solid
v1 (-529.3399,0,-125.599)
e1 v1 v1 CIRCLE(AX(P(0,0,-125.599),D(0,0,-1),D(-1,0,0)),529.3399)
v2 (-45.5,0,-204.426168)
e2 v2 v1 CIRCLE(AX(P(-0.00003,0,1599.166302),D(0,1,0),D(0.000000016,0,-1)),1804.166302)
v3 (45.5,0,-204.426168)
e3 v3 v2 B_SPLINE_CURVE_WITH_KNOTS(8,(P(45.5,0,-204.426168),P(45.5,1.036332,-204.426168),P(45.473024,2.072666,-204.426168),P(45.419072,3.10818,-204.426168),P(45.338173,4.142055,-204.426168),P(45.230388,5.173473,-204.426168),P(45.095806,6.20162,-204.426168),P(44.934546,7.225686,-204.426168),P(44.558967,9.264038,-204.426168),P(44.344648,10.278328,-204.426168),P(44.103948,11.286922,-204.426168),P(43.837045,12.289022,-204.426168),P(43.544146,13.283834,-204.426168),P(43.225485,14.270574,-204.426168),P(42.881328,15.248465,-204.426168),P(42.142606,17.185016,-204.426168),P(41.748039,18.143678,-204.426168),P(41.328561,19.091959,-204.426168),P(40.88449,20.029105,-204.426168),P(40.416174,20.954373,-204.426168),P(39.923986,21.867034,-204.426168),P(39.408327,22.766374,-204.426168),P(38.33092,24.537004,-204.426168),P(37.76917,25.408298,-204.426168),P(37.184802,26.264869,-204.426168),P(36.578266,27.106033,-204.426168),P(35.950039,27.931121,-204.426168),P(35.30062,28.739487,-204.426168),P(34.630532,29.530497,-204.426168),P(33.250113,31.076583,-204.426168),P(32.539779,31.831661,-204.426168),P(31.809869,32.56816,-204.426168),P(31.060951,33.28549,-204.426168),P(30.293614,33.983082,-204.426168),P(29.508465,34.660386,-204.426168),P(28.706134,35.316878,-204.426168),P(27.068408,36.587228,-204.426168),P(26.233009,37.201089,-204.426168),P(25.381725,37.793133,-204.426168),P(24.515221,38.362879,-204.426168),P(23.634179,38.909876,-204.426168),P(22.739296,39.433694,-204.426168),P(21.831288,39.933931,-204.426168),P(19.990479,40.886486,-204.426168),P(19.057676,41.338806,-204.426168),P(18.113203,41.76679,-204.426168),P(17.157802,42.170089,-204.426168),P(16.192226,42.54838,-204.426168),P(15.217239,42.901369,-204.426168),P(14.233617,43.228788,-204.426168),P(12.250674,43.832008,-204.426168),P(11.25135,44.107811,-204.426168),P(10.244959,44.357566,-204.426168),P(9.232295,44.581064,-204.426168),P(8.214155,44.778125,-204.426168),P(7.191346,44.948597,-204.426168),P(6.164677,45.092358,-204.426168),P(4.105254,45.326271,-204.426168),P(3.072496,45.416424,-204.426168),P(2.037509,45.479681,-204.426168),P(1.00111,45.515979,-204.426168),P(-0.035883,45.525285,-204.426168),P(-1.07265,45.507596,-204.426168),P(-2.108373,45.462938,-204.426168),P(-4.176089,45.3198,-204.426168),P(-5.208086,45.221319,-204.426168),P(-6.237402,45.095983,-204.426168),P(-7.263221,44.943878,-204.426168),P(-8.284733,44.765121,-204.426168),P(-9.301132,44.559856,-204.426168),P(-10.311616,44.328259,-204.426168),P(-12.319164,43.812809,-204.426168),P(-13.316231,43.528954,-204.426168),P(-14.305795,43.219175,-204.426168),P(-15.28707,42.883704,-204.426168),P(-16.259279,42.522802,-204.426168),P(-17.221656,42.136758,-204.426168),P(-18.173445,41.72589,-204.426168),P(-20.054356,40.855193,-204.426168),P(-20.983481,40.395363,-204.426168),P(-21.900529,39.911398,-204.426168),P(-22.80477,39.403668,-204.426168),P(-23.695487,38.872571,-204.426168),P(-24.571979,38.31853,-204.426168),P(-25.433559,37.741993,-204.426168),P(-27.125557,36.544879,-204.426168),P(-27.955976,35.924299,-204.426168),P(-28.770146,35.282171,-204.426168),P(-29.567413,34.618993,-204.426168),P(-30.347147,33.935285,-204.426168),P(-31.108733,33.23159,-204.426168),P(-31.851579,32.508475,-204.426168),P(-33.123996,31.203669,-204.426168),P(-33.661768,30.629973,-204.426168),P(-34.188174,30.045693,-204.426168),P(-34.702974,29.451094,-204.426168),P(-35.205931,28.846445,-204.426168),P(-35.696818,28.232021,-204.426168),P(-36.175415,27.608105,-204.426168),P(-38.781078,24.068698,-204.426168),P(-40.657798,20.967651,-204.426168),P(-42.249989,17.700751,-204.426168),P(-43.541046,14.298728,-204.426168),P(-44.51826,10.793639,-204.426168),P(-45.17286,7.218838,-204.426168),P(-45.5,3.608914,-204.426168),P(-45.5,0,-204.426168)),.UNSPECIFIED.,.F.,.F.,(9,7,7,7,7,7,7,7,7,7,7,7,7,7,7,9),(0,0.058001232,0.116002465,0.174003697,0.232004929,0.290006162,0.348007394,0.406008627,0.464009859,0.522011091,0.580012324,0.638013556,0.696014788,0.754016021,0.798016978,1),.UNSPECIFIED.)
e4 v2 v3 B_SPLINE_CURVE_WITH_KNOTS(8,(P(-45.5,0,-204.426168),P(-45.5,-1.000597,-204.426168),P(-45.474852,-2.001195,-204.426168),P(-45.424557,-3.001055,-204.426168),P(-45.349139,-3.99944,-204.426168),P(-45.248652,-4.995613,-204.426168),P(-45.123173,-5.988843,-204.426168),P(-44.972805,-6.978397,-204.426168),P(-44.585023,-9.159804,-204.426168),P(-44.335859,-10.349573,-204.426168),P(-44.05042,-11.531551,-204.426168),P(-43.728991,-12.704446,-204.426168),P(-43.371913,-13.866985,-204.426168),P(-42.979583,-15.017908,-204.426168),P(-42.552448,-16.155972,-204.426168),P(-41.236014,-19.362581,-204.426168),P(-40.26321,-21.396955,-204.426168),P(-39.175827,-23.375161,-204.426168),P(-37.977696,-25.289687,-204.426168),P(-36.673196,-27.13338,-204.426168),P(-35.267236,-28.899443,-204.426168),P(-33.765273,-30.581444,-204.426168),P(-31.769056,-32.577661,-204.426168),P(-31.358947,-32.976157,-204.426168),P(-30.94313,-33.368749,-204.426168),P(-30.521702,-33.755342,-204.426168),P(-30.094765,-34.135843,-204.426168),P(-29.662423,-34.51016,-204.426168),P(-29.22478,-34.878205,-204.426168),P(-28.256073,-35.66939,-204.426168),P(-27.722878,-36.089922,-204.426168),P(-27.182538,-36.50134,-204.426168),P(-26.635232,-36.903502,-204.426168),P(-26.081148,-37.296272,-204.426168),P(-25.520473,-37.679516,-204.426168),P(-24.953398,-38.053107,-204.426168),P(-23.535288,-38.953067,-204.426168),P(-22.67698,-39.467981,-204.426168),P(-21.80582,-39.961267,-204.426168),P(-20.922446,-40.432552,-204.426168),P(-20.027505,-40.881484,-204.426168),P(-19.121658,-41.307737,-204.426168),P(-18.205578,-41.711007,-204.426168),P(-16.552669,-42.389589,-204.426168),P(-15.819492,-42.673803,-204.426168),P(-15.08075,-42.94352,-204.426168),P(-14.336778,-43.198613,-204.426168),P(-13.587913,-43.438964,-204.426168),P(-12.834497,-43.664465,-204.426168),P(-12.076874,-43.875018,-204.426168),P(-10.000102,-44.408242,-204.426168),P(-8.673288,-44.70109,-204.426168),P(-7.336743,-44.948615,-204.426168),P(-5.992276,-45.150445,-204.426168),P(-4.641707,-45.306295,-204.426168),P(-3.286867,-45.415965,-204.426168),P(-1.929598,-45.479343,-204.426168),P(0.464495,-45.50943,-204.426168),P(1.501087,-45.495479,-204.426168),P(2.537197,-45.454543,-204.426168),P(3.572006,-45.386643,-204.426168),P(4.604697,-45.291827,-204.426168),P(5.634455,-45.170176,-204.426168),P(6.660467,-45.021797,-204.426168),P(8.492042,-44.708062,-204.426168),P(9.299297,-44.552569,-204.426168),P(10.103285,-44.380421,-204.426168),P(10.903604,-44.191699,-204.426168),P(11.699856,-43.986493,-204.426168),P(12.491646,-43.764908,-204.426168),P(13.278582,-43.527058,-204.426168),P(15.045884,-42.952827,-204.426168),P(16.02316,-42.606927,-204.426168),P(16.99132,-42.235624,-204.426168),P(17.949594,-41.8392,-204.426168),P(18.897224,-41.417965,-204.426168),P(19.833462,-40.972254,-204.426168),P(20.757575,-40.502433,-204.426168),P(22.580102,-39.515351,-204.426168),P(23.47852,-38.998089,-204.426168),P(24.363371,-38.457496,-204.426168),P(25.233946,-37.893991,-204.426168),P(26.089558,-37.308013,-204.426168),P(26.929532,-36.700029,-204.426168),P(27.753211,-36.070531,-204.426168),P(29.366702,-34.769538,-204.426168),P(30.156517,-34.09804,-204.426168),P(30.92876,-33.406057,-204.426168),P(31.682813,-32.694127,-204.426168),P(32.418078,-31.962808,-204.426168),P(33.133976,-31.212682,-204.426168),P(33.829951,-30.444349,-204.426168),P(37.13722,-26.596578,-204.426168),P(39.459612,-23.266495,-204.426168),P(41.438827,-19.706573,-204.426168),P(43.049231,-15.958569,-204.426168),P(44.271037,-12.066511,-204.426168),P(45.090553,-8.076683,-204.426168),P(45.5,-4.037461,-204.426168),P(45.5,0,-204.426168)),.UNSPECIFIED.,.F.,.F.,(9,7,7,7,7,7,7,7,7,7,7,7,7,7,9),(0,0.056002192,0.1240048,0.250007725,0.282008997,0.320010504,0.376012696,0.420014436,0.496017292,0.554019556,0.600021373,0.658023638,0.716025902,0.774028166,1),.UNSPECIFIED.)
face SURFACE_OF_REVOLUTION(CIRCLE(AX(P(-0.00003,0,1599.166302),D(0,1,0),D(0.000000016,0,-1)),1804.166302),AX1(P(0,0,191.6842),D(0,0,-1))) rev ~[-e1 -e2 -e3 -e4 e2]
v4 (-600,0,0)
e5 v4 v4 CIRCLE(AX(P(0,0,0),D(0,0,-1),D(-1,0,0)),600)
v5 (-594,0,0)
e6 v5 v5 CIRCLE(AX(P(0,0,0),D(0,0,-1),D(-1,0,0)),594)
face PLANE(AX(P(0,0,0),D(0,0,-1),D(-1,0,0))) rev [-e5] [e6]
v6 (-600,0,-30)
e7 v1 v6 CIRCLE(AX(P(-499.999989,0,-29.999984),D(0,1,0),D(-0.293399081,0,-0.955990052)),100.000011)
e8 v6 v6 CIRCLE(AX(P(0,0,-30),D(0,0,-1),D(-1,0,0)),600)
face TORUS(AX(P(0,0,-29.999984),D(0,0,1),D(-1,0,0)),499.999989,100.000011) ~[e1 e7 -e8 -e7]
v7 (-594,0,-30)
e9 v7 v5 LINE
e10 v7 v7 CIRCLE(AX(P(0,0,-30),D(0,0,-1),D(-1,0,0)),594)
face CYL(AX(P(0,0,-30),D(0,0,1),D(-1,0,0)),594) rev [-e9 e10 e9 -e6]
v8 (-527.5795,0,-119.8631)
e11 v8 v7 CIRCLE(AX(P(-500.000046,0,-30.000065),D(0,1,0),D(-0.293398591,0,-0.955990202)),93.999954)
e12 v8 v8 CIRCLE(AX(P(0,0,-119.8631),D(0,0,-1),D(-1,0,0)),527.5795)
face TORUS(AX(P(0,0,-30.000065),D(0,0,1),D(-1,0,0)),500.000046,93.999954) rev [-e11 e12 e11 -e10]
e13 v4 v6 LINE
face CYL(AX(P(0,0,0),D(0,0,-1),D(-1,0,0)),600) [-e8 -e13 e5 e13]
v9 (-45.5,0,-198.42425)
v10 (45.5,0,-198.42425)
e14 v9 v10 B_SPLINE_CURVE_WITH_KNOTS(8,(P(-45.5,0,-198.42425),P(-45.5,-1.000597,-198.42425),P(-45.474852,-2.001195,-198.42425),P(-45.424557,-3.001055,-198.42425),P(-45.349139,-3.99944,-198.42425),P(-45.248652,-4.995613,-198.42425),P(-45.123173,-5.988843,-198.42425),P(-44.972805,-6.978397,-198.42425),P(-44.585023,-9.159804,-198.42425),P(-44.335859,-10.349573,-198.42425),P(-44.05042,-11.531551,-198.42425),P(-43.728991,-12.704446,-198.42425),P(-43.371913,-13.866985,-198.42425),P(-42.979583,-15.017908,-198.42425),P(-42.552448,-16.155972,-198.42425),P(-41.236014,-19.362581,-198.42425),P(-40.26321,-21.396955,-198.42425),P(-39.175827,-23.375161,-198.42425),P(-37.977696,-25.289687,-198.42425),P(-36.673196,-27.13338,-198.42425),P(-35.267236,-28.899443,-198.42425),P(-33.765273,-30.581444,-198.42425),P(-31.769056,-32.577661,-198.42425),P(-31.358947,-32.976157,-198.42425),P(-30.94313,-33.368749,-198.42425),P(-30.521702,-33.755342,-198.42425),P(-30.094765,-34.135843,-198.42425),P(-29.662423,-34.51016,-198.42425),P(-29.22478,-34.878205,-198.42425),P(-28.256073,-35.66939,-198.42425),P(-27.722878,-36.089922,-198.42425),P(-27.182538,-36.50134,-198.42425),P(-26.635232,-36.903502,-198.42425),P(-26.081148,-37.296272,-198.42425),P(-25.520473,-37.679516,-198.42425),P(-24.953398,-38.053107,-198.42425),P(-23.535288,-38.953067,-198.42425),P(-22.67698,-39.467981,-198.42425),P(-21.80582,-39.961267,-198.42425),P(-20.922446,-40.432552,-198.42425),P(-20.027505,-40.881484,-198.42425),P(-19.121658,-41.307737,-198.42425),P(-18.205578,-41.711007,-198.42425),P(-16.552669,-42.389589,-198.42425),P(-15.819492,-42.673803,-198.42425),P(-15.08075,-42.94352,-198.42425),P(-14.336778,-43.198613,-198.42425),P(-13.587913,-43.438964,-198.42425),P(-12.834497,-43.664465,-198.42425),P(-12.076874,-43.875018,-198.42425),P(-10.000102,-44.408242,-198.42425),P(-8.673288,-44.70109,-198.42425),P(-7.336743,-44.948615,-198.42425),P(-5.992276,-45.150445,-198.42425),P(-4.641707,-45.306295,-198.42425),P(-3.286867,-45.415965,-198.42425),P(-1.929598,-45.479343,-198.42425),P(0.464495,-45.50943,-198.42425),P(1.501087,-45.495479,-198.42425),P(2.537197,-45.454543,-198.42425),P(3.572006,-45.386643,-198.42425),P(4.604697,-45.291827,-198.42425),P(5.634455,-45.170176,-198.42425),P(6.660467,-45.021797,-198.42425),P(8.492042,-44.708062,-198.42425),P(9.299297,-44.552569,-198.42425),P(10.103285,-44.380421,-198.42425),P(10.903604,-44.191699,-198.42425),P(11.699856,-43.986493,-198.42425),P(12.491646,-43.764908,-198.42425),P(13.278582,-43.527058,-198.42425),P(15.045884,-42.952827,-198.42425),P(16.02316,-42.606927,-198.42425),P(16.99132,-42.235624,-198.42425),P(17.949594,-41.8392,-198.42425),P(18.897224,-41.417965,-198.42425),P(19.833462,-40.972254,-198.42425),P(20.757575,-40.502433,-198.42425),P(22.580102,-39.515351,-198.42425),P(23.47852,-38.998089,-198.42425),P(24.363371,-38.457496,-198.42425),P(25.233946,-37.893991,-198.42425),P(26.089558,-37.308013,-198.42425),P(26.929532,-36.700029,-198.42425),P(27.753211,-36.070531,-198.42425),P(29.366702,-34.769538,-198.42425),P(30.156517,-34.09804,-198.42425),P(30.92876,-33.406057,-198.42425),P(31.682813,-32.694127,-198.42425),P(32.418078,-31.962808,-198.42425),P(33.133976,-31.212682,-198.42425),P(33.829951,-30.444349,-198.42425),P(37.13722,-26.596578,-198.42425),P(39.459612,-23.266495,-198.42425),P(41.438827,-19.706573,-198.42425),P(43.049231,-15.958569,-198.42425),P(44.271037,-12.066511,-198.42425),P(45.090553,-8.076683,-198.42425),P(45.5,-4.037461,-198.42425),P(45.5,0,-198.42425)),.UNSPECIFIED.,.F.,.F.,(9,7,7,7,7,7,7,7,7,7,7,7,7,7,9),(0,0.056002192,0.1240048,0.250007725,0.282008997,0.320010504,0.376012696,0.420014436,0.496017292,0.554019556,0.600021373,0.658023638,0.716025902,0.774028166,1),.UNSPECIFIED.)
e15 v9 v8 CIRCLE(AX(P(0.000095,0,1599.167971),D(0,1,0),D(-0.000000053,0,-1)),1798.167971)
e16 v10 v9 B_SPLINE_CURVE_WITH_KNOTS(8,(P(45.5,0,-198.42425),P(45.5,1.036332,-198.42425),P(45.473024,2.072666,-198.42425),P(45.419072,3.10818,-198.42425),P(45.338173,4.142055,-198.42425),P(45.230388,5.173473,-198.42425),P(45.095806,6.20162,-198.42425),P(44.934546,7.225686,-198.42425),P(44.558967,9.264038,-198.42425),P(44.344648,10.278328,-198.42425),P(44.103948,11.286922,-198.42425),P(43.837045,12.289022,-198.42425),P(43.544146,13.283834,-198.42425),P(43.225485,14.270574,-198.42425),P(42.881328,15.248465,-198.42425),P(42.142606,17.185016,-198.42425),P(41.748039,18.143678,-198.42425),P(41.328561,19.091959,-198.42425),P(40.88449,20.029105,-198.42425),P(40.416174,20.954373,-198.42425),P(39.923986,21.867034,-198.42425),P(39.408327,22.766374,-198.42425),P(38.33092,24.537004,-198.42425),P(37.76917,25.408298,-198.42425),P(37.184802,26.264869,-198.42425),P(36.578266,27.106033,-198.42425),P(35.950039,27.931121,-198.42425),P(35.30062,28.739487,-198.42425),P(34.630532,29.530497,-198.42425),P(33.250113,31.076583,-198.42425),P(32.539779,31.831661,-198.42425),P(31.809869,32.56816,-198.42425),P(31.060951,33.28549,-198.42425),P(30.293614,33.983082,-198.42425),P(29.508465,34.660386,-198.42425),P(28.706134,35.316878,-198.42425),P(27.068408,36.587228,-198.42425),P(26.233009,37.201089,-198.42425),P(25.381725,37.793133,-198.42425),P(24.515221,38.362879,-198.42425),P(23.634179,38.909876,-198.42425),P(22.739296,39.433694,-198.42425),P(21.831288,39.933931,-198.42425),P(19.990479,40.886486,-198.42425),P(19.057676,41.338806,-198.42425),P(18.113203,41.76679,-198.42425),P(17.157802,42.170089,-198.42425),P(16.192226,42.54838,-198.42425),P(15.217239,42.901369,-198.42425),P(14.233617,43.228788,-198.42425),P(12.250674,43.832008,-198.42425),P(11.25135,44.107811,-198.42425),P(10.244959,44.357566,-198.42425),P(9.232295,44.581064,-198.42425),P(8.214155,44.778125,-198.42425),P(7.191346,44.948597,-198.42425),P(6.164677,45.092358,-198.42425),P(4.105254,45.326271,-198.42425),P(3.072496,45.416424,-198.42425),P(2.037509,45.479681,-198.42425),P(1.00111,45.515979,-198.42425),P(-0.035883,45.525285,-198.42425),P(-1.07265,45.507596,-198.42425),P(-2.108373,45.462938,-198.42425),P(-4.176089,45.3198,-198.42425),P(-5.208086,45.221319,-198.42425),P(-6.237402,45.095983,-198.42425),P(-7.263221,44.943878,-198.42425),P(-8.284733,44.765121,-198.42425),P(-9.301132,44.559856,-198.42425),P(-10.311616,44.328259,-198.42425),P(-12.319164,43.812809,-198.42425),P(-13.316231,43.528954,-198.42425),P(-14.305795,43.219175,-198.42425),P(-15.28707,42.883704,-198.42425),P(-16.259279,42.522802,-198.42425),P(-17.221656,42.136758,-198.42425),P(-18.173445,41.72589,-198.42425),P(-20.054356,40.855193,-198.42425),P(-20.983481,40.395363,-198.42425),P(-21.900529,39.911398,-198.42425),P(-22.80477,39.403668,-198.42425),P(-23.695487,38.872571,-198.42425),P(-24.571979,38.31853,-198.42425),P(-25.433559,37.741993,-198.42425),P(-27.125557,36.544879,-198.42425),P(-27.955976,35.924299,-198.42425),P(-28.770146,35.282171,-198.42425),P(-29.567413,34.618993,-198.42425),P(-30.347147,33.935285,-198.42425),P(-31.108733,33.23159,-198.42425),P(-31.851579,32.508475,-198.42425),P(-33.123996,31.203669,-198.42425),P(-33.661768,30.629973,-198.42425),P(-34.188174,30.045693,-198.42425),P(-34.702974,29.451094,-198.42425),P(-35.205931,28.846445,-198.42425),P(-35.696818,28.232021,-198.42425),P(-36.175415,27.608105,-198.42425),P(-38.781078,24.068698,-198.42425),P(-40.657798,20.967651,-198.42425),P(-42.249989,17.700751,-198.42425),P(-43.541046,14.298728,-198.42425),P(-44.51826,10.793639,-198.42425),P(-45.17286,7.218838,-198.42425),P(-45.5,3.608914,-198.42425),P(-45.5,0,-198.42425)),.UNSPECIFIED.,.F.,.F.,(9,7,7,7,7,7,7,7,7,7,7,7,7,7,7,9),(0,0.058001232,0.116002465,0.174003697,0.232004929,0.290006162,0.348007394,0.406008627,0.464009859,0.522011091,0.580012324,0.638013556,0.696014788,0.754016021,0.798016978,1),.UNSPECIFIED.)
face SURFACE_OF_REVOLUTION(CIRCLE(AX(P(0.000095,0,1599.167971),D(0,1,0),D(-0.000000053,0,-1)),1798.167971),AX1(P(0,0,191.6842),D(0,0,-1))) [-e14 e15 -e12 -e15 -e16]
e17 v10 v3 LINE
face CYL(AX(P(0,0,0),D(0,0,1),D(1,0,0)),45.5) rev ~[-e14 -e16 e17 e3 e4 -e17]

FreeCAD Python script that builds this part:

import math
import FreeCAD as App
import Part
import Sketcher
Q = App.Units.Quantity

doc = App.newDocument("Part")
body = doc.addObject("PartDesign::Body", "Body")

# Sketch on XZ plane
sketch1 = body.newObject("Sketcher::SketchObject", "Sketch")
sketch1.AttachmentSupport = (doc.getObject("XZ_Plane"), [""])
sketch1.MapMode = "FlatFace"
sketch1.addGeometry([
    Part.LineSegment(App.Vector(-600, -30, 0), App.Vector(-600, 0, 0)),  # 0
    Part.LineSegment(App.Vector(-600, 0, 0), App.Vector(-594, 0, 0)),  # 1
    Part.LineSegment(App.Vector(-594, 0, 0), App.Vector(-594, -30, 0)),  # 2
    Part.ArcOfCircle(Part.Circle(App.Vector(-500, -30, 0), App.Vector(0, 0, 1), 94), math.radians(180), math.radians(253)),  # 3
    Part.ArcOfCircle(Part.Circle(App.Vector(0, 1599, 0), App.Vector(0, 0, 1), 1798), math.radians(-107.06), math.radians(-90)),  # 4
    Part.LineSegment(App.Vector(0, -199, 0), App.Vector(0, -205, 0)),  # 5
    Part.ArcOfCircle(Part.Circle(App.Vector(0, 1599, 0), App.Vector(0, 0, 1), 1804), math.radians(-107.06), math.radians(-90)),  # 6
    Part.ArcOfCircle(Part.Circle(App.Vector(-500, -30, 0), App.Vector(0, 0, 1), 100), math.radians(180), math.radians(253)),  # 7
], False)
sketch1.addConstraint([
    Sketcher.Constraint("Coincident", 0, 2, 1, 1),
    Sketcher.Constraint("Coincident", 1, 2, 2, 1),
    Sketcher.Constraint("Tangent", 2, 2, 3, 1),
    Sketcher.Constraint("Tangent", 3, 2, 4, 1),
    Sketcher.Constraint("Coincident", 4, 2, 5, 1),
    Sketcher.Constraint("Coincident", 5, 2, 6, 2),
    Sketcher.Constraint("Tangent", 6, 1, 7, 2),
    Sketcher.Constraint("Tangent", 7, 1, 0, 1),
    Sketcher.Constraint("Vertical", 0),
    Sketcher.Constraint("Horizontal", 1),
    Sketcher.Constraint("Vertical", 2),
    Sketcher.Constraint("Vertical", 5),
    Sketcher.Constraint("Coincident", 7, 3, 3, 3),
    Sketcher.Constraint("PointOnObject", 4, 3, -2),
    Sketcher.Constraint("PointOnObject", 6, 3, -2),
    Sketcher.Constraint("PointOnObject", 0, 2, -1),
    Sketcher.Constraint("PointOnObject", 5, 2, -2),
    Sketcher.Constraint("Equal", 1, 5),
    Sketcher.Constraint("Radius", 7, Q("100 mm")),
    Sketcher.Constraint("DistanceX", 1, 1, 1, 2, Q("6 mm")),
    Sketcher.Constraint("DistanceY", 0, 1, 0, 2, Q("30 mm")),
    Sketcher.Constraint("DistanceY", 5, 2, -1, 1, Q("205 mm")),
    Sketcher.Constraint("Radius", 6, Q("1804.1667 mm")),
])
revolution = body.newObject("PartDesign::Revolution", "Revolution")
revolution.Profile = sketch1
revolution.ReferenceAxis = (sketch1, ["V_Axis"])
revolution.Angle = 360

# Sketch on XY plane
sketch2 = body.newObject("Sketcher::SketchObject", "Sketch001")
sketch2.AttachmentSupport = (doc.getObject("XY_Plane"), [""])
sketch2.MapMode = "FlatFace"
sketch2.addGeometry(Part.Circle(App.Vector(0, 0, 0), App.Vector(0, 0, 1), 46), False)
sketch2.addConstraint([
    Sketcher.Constraint("Coincident", 0, 3, -1, 1),
    Sketcher.Constraint("Diameter", 0, Q("91 mm")),
])
pocket1 = body.newObject("PartDesign::Pocket", "Pocket")
pocket1.Profile = sketch2
pocket1.Type = "ThroughAll"

doc.recompute()
